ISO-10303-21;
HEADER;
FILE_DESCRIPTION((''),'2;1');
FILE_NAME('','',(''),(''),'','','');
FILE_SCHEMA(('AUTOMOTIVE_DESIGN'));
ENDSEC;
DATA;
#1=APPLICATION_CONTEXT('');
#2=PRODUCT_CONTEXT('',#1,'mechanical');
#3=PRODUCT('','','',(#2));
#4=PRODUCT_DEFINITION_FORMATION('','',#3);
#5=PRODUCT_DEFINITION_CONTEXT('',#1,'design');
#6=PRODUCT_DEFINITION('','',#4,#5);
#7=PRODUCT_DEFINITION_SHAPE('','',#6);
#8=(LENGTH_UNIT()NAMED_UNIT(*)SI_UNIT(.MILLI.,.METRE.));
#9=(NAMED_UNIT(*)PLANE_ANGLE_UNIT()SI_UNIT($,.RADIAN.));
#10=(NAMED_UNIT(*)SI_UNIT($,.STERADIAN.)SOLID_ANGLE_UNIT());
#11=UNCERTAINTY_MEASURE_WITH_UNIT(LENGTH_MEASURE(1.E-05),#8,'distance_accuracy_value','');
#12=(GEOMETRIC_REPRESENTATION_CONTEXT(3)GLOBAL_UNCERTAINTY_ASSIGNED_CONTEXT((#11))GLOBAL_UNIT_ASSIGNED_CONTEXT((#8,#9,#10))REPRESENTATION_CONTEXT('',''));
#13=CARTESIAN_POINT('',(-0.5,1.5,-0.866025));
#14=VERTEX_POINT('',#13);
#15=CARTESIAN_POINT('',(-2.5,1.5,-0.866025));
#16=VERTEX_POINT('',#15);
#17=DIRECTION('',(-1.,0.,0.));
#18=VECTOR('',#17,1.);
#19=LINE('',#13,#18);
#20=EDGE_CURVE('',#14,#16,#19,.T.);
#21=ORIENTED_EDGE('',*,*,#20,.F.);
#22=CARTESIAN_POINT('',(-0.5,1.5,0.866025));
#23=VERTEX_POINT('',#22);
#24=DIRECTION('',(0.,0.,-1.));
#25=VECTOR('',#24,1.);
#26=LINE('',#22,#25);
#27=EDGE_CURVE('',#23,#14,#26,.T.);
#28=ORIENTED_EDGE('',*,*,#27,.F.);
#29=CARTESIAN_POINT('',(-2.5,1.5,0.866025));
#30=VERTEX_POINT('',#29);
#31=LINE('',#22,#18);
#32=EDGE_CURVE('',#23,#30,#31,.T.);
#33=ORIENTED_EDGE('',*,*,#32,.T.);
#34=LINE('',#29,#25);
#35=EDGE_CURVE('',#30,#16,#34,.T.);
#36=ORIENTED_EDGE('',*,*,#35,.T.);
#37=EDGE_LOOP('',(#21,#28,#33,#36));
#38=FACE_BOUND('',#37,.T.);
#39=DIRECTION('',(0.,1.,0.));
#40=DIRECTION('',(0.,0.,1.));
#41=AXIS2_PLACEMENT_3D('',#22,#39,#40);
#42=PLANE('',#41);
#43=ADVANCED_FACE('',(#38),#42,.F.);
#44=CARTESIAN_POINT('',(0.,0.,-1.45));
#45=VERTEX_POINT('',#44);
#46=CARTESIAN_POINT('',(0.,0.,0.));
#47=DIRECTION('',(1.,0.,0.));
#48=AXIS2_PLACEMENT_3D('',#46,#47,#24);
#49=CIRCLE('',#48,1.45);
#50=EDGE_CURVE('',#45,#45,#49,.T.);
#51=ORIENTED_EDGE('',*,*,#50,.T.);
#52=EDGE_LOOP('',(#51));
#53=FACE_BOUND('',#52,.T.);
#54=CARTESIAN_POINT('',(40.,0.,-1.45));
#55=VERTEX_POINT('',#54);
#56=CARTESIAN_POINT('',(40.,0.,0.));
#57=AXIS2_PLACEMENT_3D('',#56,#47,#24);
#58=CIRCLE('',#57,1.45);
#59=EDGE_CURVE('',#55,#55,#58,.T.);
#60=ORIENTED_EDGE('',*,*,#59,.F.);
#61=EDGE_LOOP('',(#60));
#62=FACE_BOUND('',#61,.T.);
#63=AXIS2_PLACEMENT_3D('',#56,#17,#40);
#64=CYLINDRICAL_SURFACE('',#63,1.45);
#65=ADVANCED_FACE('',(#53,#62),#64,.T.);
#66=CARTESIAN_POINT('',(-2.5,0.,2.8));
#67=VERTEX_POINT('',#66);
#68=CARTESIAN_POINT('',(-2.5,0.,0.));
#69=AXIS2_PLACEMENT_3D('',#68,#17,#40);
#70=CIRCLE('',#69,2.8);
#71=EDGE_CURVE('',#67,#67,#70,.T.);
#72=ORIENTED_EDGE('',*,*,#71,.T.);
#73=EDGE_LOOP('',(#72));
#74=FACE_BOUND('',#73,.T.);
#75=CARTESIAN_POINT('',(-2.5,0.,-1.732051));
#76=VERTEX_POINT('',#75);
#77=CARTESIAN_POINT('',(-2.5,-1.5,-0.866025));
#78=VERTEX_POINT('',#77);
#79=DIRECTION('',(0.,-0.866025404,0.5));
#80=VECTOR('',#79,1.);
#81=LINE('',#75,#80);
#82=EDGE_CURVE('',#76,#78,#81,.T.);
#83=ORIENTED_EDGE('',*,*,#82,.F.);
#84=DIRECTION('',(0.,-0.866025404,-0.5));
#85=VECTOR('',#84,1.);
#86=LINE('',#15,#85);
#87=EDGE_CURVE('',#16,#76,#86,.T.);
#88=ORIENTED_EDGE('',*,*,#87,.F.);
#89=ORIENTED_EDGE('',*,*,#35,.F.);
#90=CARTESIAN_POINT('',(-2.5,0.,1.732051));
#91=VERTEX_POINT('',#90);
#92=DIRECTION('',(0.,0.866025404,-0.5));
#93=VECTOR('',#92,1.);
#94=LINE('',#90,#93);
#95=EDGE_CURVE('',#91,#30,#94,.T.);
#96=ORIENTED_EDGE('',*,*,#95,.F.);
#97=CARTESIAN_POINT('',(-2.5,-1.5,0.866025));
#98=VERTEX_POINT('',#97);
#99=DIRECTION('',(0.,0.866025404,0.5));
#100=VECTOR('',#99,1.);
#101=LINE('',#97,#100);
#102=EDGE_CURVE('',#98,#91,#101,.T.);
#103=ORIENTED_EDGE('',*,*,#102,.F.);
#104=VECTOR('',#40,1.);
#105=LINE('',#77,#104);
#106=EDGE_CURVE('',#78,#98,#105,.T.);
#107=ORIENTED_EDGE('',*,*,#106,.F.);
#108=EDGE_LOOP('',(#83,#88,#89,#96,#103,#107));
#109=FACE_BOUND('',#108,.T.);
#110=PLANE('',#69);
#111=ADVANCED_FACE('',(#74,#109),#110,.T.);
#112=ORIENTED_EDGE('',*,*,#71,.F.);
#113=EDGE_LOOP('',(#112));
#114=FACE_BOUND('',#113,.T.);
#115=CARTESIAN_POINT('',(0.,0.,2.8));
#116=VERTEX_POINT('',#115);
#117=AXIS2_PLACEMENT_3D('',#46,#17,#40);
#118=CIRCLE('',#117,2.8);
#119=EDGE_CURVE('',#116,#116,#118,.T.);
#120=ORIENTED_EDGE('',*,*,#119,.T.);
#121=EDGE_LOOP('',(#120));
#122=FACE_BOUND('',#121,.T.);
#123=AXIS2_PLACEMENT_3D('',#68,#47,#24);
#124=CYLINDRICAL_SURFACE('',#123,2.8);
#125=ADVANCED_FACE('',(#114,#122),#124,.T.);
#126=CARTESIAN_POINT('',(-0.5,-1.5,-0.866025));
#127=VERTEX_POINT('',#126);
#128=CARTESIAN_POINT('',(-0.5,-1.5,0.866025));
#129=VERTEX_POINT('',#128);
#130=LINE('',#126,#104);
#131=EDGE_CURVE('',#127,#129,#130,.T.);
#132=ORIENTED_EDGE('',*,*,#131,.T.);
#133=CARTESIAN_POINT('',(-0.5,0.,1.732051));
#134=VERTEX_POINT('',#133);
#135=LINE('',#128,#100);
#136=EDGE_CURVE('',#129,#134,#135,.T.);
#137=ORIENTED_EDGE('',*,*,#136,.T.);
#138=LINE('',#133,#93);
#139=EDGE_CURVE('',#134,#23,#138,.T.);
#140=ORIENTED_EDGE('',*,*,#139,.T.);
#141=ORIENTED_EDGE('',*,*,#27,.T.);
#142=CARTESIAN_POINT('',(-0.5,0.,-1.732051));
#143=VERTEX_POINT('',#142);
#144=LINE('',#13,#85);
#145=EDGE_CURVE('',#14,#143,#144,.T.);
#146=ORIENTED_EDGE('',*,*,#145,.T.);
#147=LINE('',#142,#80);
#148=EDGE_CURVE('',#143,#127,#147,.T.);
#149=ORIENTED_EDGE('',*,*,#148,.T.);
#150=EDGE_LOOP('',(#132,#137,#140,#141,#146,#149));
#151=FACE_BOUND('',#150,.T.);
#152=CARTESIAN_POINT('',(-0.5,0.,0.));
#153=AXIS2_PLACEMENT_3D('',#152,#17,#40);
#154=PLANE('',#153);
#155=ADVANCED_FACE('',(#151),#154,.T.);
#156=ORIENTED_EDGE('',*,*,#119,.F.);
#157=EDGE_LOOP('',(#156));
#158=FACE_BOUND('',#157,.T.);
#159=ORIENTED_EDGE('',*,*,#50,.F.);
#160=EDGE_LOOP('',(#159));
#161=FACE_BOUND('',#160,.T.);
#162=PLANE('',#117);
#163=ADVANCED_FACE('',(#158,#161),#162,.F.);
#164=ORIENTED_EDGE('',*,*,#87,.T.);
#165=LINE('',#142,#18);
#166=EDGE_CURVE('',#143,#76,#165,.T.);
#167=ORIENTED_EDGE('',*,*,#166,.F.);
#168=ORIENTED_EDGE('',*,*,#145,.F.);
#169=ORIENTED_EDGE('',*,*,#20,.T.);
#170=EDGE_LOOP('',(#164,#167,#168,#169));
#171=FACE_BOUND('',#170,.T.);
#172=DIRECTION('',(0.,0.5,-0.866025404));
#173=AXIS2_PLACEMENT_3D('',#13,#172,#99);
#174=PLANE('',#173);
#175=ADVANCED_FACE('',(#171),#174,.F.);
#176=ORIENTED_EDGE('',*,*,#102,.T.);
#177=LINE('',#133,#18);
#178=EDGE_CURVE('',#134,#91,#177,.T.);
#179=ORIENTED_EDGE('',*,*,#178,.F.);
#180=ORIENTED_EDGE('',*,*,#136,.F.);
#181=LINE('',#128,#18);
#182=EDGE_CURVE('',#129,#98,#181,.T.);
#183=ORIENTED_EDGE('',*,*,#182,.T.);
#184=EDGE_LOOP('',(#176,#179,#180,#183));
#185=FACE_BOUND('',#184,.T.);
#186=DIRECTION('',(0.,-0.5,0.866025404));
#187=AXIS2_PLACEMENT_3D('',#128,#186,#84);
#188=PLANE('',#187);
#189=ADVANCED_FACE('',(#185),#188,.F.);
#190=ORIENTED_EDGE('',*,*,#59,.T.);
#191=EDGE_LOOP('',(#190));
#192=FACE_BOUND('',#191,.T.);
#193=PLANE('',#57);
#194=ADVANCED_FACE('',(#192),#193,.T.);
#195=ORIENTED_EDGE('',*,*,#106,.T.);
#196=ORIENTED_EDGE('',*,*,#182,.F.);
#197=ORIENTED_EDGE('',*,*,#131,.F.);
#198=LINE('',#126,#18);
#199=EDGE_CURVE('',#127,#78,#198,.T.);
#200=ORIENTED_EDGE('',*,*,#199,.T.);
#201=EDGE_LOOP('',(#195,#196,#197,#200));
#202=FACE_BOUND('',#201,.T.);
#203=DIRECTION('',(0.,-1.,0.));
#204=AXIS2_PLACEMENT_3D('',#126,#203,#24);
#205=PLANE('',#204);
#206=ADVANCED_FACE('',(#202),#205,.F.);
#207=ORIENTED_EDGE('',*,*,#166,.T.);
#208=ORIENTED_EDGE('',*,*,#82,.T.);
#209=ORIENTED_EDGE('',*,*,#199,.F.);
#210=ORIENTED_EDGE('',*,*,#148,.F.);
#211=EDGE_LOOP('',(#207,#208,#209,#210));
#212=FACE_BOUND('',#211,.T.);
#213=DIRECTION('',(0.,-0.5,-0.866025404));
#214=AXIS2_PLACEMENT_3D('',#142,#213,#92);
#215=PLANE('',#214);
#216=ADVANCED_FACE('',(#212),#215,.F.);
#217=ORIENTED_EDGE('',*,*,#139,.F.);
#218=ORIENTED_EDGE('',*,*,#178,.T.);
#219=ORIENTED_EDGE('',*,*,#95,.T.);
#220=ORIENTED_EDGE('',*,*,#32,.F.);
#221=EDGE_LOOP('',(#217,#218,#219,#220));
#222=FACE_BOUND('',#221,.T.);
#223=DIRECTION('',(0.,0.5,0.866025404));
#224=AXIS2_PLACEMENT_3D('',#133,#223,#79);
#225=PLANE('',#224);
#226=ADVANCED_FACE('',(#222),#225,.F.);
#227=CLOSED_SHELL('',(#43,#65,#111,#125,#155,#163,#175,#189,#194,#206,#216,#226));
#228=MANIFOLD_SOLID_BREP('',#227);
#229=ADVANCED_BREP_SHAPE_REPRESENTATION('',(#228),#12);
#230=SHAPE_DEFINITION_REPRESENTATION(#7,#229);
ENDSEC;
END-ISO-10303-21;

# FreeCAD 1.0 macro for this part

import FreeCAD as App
import Part
import Sketcher

V = App.Vector
Q = App.Units.Quantity

doc = App.newDocument("Part")
body = doc.addObject("PartDesign::Body", "Body")

# Sketch on YZ plane
sketch1 = body.newObject("Sketcher::SketchObject", "Sketch")
sketch1.AttachmentSupport = (doc.getObject("YZ_Plane"), [""])
sketch1.MapMode = "FlatFace"
sketch1.addGeometry(Part.Circle(V(0, 0, 0), V(0, 0, 1), 1.45), False)
sketch1.addConstraint(Sketcher.Constraint("Coincident", 0, 3, -1, 1))
sketch1.addConstraint(Sketcher.Constraint("Diameter", 0, Q("2.9 mm")))
pad1 = body.newObject("PartDesign::Pad", "Pad")
pad1.Profile = sketch1
pad1.Length = 40

# Sketch on YZ plane
sketch2 = body.newObject("Sketcher::SketchObject", "Sketch001")
sketch2.AttachmentSupport = (doc.getObject("YZ_Plane"), [""])
sketch2.MapMode = "FlatFace"
sketch2.addGeometry(Part.Circle(V(0, 0, 0), V(0, 0, 1), 2.8), False)
sketch2.addConstraint(Sketcher.Constraint("Coincident", 0, 3, -1, 1))
sketch2.addConstraint(Sketcher.Constraint("Diameter", 0, Q("5.6 mm")))
pad2 = body.newObject("PartDesign::Pad", "Pad001")
pad2.Profile = sketch2
pad2.Length = 2.5
pad2.Reversed = True

# Sketch on YZ plane
sketch3 = body.newObject("Sketcher::SketchObject", "Sketch002")
sketch3.AttachmentSupport = (doc.getObject("YZ_Plane"), [""])
sketch3.MapMode = "FlatFace"
sketch3.AttachmentOffset = App.Placement(V(0, 0, -2.5), App.Rotation())
sketch3.addGeometry(Part.LineSegment(V(-1.5, 0.866025, 0), V(0, 1.732051, 0)), False)
sketch3.addGeometry(Part.LineSegment(V(0, 1.732051, 0), V(1.5, 0.866025, 0)), False)
sketch3.addGeometry(Part.LineSegment(V(1.5, 0.866025, 0), V(1.5, -0.866025, 0)), False)
sketch3.addGeometry(Part.LineSegment(V(1.5, -0.866025, 0), V(0, -1.732051, 0)), False)
sketch3.addGeometry(Part.LineSegment(V(0, -1.732051, 0), V(-1.5, -0.866025, 0)), False)
sketch3.addGeometry(Part.LineSegment(V(-1.5, -0.866025, 0), V(-1.5, 0.866025, 0)), False)
sketch3.addConstraint(Sketcher.Constraint("Coincident", 0, 2, 1, 1))
sketch3.addConstraint(Sketcher.Constraint("Coincident", 1, 2, 2, 1))
sketch3.addConstraint(Sketcher.Constraint("Coincident", 2, 2, 3, 1))
sketch3.addConstraint(Sketcher.Constraint("Coincident", 3, 2, 4, 1))
sketch3.addConstraint(Sketcher.Constraint("Coincident", 4, 2, 5, 1))
sketch3.addConstraint(Sketcher.Constraint("Coincident", 5, 2, 0, 1))
sketch3.addConstraint(Sketcher.Constraint("Vertical", 2))
sketch3.addConstraint(Sketcher.Constraint("Vertical", 5))
sketch3.addConstraint(Sketcher.Constraint("Symmetric", 0, 2, 3, 2, -1, 1))
sketch3.addConstraint(Sketcher.Constraint("Symmetric", 1, 2, 4, 2, -1, 1))
sketch3.addConstraint(Sketcher.Constraint("PointOnObject", 0, 2, -2))
sketch3.addConstraint(Sketcher.Constraint("Parallel", 0, 3))
sketch3.addConstraint(Sketcher.Constraint("Horizontal", 2, 2, 4, 2))
sketch3.addConstraint(Sketcher.Constraint("Angle", 0, Q("30 deg")))
sketch3.addConstraint(Sketcher.Constraint("DistanceX", 4, 2, 2, 2, Q("3 mm")))
sketch3.addConstraint(Sketcher.Constraint("DistanceY", 2, 2, 2, 1, Q("1.732051 mm")))
pocket1 = body.newObject("PartDesign::Pocket", "Pocket")
pocket1.Profile = sketch3
pocket1.Length = 2
pocket1.Reversed = True

doc.recompute()
